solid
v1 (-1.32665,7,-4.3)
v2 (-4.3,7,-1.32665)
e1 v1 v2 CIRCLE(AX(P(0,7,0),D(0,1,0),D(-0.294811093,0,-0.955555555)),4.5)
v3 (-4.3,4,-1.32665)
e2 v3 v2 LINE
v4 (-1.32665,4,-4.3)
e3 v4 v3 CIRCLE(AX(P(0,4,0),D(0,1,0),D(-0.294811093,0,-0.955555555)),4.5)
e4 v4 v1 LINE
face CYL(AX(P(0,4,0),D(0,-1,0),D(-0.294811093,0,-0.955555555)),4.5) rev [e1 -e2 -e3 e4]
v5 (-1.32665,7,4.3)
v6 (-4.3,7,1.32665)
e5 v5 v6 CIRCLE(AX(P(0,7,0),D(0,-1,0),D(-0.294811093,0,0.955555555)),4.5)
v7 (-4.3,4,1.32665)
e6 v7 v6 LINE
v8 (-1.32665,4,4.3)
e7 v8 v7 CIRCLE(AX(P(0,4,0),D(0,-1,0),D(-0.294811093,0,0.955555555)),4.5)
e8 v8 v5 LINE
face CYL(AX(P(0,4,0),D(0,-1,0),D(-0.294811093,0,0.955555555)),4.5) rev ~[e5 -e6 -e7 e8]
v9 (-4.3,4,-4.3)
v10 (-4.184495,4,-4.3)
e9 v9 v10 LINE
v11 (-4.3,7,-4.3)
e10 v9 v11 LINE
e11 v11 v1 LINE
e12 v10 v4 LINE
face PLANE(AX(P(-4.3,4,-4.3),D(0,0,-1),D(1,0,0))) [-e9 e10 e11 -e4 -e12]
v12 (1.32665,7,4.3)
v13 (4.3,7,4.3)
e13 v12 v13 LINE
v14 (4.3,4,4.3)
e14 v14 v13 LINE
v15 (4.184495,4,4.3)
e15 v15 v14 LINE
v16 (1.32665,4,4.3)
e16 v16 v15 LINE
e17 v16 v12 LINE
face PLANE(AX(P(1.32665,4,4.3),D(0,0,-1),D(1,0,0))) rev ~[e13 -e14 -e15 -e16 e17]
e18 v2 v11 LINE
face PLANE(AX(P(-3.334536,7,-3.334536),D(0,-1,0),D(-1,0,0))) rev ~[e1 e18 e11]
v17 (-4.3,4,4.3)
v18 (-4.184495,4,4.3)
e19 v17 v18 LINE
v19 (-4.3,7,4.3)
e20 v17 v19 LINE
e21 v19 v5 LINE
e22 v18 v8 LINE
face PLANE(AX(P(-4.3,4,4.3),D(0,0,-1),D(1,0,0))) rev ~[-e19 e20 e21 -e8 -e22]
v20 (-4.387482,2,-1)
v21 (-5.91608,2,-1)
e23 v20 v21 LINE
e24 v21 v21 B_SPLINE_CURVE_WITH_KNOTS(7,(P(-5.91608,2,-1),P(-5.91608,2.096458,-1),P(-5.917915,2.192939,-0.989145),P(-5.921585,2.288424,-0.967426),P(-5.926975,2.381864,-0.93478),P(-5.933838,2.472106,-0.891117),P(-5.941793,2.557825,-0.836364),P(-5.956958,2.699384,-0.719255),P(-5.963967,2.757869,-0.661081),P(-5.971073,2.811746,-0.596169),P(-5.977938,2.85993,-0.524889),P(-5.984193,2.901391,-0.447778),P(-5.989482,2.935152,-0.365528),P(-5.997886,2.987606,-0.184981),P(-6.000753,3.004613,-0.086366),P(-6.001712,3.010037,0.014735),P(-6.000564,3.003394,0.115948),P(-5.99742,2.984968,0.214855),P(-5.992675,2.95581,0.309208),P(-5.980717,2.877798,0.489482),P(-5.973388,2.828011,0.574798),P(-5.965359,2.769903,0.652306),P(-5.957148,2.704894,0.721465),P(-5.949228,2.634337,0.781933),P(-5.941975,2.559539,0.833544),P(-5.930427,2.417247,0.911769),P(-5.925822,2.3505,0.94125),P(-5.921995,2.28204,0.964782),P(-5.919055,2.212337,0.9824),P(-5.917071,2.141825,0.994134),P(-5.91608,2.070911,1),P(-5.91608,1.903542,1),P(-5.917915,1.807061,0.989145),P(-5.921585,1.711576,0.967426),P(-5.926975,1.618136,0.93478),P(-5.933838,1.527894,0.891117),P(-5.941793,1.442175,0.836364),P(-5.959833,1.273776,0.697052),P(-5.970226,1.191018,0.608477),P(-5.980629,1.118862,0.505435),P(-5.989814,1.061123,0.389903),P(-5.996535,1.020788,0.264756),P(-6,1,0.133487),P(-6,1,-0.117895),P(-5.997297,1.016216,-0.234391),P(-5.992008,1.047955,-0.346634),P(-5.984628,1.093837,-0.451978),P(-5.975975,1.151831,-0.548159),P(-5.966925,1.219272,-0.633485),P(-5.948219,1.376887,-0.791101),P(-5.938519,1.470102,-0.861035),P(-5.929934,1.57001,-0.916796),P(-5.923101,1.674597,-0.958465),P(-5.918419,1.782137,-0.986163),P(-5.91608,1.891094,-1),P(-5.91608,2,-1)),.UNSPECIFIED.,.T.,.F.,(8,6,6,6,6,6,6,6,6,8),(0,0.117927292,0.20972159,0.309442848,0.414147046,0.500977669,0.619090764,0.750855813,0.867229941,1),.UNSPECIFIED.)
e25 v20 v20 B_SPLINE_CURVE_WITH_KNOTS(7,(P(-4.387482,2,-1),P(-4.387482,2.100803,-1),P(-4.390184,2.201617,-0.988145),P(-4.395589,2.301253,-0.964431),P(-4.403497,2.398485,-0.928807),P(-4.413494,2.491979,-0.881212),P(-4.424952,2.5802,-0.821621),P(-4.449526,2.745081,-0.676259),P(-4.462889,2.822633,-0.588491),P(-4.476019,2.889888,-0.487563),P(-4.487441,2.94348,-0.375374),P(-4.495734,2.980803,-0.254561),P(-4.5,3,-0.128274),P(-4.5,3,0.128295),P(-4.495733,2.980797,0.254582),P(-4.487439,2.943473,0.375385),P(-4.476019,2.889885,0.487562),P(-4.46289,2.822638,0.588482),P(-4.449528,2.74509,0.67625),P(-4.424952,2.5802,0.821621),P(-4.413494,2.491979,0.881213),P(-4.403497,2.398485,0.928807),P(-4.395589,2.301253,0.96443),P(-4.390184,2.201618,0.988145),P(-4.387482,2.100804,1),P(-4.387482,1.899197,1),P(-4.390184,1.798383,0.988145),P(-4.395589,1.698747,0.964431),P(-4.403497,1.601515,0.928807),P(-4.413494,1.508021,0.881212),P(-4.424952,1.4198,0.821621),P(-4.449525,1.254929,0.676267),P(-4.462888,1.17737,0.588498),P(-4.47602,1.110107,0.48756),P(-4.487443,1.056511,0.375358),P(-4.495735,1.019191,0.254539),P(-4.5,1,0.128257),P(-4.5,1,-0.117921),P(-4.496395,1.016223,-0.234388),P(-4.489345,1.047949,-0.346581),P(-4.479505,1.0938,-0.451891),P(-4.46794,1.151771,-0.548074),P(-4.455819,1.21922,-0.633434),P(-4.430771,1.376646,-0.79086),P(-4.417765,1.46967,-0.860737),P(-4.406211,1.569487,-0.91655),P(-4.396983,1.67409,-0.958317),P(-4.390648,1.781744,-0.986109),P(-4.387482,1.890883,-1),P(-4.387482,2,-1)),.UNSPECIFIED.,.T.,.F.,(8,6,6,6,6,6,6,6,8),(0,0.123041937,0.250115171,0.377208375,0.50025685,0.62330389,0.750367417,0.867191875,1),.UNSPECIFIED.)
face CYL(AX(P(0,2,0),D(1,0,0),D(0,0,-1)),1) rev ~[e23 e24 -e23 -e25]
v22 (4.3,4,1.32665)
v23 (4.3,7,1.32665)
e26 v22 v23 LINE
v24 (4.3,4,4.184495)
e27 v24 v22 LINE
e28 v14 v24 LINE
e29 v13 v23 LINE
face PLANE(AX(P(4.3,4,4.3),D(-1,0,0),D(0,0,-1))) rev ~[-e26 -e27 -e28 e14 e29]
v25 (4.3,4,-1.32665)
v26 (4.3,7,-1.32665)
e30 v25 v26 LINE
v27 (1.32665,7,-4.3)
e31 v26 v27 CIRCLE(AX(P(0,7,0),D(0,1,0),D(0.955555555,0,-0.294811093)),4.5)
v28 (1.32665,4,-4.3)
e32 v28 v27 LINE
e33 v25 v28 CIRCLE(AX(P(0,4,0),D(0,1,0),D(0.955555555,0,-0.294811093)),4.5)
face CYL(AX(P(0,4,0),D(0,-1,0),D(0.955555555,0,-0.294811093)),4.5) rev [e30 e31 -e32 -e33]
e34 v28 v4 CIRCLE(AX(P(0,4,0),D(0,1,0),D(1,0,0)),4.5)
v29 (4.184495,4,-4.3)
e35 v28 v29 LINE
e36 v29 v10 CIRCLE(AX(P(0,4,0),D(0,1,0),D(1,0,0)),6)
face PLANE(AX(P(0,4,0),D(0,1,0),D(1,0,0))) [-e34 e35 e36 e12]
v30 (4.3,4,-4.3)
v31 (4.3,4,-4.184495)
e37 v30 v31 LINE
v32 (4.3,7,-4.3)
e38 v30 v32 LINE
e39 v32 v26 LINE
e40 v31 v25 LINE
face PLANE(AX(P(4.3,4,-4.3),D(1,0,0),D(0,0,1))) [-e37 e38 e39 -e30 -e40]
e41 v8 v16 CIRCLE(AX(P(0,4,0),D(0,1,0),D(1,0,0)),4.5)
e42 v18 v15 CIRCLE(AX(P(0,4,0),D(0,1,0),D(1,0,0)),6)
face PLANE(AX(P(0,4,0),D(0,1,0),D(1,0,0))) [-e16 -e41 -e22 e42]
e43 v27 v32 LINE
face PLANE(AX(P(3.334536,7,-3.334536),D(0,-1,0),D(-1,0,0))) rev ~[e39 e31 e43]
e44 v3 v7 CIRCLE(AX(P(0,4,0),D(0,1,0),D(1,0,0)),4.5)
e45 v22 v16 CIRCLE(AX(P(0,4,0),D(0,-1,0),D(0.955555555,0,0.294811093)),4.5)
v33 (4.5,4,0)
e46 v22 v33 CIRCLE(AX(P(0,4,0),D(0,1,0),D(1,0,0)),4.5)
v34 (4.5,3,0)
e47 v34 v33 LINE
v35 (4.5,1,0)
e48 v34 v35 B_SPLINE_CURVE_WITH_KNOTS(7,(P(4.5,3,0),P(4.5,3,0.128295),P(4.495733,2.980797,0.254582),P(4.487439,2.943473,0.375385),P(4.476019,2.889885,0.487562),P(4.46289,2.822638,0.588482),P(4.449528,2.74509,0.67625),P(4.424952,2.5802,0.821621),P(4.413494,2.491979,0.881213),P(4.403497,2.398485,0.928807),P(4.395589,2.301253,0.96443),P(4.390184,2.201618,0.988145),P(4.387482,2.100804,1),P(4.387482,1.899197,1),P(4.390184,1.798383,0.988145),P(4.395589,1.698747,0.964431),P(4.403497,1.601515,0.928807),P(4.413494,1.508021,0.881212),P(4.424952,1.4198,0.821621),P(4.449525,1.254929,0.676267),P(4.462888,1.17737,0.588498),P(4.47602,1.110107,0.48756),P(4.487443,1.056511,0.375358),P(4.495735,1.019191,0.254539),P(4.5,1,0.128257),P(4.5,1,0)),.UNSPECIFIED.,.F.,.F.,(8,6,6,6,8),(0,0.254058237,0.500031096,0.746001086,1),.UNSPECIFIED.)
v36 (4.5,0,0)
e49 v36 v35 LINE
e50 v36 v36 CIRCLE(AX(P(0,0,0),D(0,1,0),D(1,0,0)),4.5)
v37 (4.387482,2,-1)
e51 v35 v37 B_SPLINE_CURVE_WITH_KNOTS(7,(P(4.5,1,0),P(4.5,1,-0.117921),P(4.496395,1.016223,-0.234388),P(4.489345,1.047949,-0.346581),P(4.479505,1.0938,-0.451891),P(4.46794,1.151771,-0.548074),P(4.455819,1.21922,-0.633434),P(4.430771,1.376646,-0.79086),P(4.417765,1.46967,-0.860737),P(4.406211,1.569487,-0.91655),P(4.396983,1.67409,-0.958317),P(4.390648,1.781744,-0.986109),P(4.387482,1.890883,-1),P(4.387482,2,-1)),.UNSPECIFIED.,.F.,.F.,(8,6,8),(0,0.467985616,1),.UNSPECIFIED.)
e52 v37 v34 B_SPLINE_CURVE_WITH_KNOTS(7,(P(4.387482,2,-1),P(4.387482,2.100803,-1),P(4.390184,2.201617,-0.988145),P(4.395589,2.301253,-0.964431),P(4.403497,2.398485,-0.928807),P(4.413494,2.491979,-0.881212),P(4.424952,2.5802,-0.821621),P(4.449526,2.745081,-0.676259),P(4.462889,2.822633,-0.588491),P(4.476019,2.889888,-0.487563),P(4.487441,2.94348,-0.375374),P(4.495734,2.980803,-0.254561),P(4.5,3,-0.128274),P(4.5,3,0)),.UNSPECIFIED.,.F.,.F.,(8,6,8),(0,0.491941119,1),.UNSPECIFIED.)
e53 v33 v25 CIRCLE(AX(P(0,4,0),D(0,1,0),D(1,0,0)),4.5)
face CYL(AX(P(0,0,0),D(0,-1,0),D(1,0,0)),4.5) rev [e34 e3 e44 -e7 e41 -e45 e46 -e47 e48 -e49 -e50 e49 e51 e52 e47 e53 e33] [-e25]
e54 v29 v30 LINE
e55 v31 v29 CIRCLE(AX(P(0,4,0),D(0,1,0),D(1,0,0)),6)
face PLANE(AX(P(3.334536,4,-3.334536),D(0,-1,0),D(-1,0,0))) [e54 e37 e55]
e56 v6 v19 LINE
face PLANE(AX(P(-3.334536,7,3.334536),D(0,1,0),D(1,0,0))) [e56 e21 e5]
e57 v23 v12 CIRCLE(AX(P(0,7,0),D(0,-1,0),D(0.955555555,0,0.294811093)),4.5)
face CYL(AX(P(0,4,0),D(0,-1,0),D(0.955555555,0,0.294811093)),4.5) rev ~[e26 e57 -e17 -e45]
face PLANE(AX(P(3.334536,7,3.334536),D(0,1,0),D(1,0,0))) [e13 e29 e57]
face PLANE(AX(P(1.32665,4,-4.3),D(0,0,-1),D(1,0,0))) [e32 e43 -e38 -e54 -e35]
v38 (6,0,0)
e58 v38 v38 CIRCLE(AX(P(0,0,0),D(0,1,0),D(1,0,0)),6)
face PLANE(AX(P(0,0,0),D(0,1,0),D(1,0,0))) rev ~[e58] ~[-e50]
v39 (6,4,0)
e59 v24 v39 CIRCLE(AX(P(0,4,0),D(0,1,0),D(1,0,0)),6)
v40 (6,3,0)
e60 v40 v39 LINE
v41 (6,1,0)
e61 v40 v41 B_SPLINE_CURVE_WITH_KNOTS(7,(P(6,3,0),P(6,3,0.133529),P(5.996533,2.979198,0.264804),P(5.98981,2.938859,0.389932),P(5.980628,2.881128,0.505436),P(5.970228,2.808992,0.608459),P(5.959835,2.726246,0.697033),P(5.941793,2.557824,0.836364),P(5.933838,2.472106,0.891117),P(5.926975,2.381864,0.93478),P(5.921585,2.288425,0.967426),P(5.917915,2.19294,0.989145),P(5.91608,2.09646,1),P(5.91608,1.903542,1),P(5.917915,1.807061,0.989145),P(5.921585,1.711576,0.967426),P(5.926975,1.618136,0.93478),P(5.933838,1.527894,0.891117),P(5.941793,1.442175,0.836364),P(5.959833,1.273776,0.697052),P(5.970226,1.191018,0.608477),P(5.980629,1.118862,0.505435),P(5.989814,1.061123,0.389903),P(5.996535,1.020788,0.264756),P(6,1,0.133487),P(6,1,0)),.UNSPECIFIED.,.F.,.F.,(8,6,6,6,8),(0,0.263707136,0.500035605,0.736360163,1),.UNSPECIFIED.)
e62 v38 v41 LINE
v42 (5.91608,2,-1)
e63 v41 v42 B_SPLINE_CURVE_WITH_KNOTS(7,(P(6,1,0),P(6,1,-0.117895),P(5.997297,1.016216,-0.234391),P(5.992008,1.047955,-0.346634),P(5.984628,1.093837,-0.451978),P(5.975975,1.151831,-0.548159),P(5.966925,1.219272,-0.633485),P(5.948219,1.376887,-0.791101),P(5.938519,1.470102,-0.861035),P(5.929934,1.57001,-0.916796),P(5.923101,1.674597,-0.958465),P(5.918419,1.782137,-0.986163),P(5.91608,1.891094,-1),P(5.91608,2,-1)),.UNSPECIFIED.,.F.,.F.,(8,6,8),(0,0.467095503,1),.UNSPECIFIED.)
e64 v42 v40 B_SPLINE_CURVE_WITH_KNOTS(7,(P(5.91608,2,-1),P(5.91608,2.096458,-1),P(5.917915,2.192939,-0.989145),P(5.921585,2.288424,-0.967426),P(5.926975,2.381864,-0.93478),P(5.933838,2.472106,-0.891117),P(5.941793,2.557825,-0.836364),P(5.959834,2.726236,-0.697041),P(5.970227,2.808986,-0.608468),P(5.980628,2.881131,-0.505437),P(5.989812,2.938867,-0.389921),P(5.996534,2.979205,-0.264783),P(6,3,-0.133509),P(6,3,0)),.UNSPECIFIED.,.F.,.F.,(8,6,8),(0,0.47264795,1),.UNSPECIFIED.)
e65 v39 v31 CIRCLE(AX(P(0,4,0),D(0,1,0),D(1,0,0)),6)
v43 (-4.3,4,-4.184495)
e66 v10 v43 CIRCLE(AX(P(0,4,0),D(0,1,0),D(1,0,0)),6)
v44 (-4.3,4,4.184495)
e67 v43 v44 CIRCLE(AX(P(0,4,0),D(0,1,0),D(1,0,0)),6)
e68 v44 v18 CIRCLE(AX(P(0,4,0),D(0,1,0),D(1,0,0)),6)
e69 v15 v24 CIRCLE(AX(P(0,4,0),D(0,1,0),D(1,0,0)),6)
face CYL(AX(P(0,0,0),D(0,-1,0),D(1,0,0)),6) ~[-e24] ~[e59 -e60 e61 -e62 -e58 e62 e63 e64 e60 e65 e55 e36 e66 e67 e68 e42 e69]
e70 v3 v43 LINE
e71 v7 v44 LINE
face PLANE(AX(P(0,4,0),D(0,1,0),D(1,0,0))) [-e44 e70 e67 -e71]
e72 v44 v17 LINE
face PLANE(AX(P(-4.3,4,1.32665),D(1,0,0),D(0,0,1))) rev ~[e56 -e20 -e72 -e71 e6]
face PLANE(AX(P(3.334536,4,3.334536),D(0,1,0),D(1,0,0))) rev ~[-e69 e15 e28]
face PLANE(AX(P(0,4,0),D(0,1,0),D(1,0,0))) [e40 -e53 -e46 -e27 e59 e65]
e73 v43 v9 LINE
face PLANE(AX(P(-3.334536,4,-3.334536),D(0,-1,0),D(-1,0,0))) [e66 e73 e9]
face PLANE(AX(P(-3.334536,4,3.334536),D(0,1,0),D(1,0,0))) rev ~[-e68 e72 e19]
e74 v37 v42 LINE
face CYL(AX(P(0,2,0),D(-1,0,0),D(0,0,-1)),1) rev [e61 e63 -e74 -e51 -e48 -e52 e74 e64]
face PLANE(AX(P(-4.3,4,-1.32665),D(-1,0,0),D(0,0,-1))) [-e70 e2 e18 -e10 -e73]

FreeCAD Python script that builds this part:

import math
import FreeCAD as App
import Part
import Sketcher

V = App.Vector
Q = App.Units.Quantity

doc = App.newDocument("Part")
params = doc.addObject("Spreadsheet::Sheet", "Params")
for row, (alias, value) in enumerate([
    ("sketch1_diameter", "12 mm"),
    ("sketch1_diameter2", "9 mm"),
    ("pad1_length", "4 mm"),
    ("sketch2_radius", "4.5 mm"),
    ("pad2_length", "3 mm"),
    ("sketch3_diameter", "2 mm"),
], start=1):
    params.set(f"A{row}", alias)
    params.set(f"B{row}", "=" + value)
    params.setAlias(f"B{row}", alias)

body = doc.addObject("PartDesign::Body", "Body")

sketch1 = body.newObject("Sketcher::SketchObject", "Sketch")
sketch1.AttachmentSupport = (doc.getObject("XZ_Plane"), [""])
sketch1.MapMode = "FlatFace"
sketch1.addGeometry([
    Part.Circle(V(0, 0, 0), V(0, 0, 1), 6),
    Part.Circle(V(0, 0, 0), V(0, 0, 1), 4.5),
], False)
sketch1.addConstraint([
    Sketcher.Constraint("Coincident", 0, 3, -1, 1),
    Sketcher.Constraint("Coincident", 1, 3, -1, 1),
    Sketcher.Constraint("Diameter", 0, Q("12 mm")),
    Sketcher.Constraint("Diameter", 1, Q("9 mm")),
])
sketch1.setExpression("Constraints[2]", "Params.sketch1_diameter")
sketch1.setExpression("Constraints[3]", "Params.sketch1_diameter2")
pad1 = body.newObject("PartDesign::Pad", "Pad")
pad1.Profile = sketch1
pad1.setExpression("Length", "Params.pad1_length")
pad1.Reversed = True

sketch2 = body.newObject("Sketcher::SketchObject", "Sketch001")
sketch2.AttachmentSupport = (doc.getObject("XZ_Plane"), [""])
sketch2.MapMode = "FlatFace"
sketch2.AttachmentOffset = App.Placement(V(0, 0, -4), App.Rotation())
sketch2.addGeometry([
    Part.LineSegment(V(4.3, -4.3, 0), V(1.3, -4.3, 0)),
    Part.ArcOfCircle(Part.Circle(V(0, 0, 0), V(0, 0, 1), 4.5), math.radians(-73), math.radians(-17)),
    Part.LineSegment(V(4.3, -1.3, 0), V(4.3, -4.3, 0)),
    Part.LineSegment(V(-4.3, 4.3, 0), V(-1.3, 4.3, 0)),
    Part.ArcOfCircle(Part.Circle(V(0, 0, 0), V(0, 0, 1), 4.5), math.radians(107), math.radians(163)),
    Part.LineSegment(V(-4.3, 1.3, 0), V(-4.3, 4.3, 0)),
    Part.LineSegment(V(-1.3, -4.3, 0), V(-4.3, -4.3, 0)),
    Part.LineSegment(V(-4.3, -4.3, 0), V(-4.3, -1.3, 0)),
    Part.ArcOfCircle(Part.Circle(V(0, 0, 0), V(0, 0, 1), 4.5), math.radians(-163), math.radians(-107)),
    Part.LineSegment(V(4.3, 4.3, 0), V(4.3, 1.3, 0)),
    Part.ArcOfCircle(Part.Circle(V(0, 0, 0), V(0, 0, 1), 4.5), math.radians(17), math.radians(73)),
    Part.LineSegment(V(1.3, 4.3, 0), V(4.3, 4.3, 0)),
], False)
sketch2.addConstraint([
    Sketcher.Constraint("Coincident", 0, 2, 1, 1),
    Sketcher.Constraint("Coincident", 1, 2, 2, 1),
    Sketcher.Constraint("Coincident", 2, 2, 0, 1),
    Sketcher.Constraint("Coincident", 3, 2, 4, 1),
    Sketcher.Constraint("Coincident", 4, 2, 5, 1),
    Sketcher.Constraint("Coincident", 5, 2, 3, 1),
    Sketcher.Constraint("Coincident", 6, 2, 7, 1),
    Sketcher.Constraint("Coincident", 7, 2, 8, 1),
    Sketcher.Constraint("Coincident", 8, 2, 6, 1),
    Sketcher.Constraint("Coincident", 9, 2, 10, 1),
    Sketcher.Constraint("Coincident", 10, 2, 11, 1),
    Sketcher.Constraint("Coincident", 11, 2, 9, 1),
    Sketcher.Constraint("Horizontal", 0),
    Sketcher.Constraint("Vertical", 2),
    Sketcher.Constraint("Horizontal", 3),
    Sketcher.Constraint("Vertical", 5),
    Sketcher.Constraint("Horizontal", 6),
    Sketcher.Constraint("Vertical", 7),
    Sketcher.Constraint("Vertical", 9),
    Sketcher.Constraint("Horizontal", 11),
    Sketcher.Constraint("Coincident", 1, 3, -1, 1),
    Sketcher.Constraint("Coincident", 4, 3, -1, 1),
    Sketcher.Constraint("Coincident", 8, 3, -1, 1),
    Sketcher.Constraint("Coincident", 10, 3, -1, 1),
    Sketcher.Constraint("Equal", 1, 4),
    Sketcher.Constraint("Equal", 4, 8),
    Sketcher.Constraint("Equal", 8, 10),
    Sketcher.Constraint("Symmetric", 2, 2, 5, 2, -1, 1),
    Sketcher.Constraint("Symmetric", 6, 2, 11, 2, -1, 1),
    Sketcher.Constraint("Symmetric", 2, 2, 6, 2, -2),
    Sketcher.Constraint("Equal", 11, 2),
    Sketcher.Constraint("Radius", 1, Q("4.5 mm")),
    Sketcher.Constraint("DistanceY", 0, 2, -1, 1, Q("4.3 mm")),
])
sketch2.setExpression("Constraints[31]", "Params.sketch2_radius")
pad2 = body.newObject("PartDesign::Pad", "Pad001")
pad2.Profile = sketch2
pad2.setExpression("Length", "Params.pad2_length")
pad2.Reversed = True

sketch3 = body.newObject("Sketcher::SketchObject", "Sketch002")
sketch3.AttachmentSupport = (doc.getObject("YZ_Plane"), [""])
sketch3.MapMode = "FlatFace"
sketch3.addGeometry(Part.Circle(V(2, 0, 0), V(0, 0, 1), 1), False)
sketch3.addConstraint([
    Sketcher.Constraint("PointOnObject", 0, 3, -1),
    Sketcher.Constraint("Diameter", 0, Q("2 mm")),
    Sketcher.Constraint("DistanceX", -1, 1, 0, 3, Q("2 mm")),
])
sketch3.setExpression("Constraints[1]", "Params.sketch3_diameter")
pocket1 = body.newObject("PartDesign::Pocket", "Pocket")
pocket1.Profile = sketch3
pocket1.Type = "ThroughAll"
pocket1.Midplane = True

doc.recompute()
